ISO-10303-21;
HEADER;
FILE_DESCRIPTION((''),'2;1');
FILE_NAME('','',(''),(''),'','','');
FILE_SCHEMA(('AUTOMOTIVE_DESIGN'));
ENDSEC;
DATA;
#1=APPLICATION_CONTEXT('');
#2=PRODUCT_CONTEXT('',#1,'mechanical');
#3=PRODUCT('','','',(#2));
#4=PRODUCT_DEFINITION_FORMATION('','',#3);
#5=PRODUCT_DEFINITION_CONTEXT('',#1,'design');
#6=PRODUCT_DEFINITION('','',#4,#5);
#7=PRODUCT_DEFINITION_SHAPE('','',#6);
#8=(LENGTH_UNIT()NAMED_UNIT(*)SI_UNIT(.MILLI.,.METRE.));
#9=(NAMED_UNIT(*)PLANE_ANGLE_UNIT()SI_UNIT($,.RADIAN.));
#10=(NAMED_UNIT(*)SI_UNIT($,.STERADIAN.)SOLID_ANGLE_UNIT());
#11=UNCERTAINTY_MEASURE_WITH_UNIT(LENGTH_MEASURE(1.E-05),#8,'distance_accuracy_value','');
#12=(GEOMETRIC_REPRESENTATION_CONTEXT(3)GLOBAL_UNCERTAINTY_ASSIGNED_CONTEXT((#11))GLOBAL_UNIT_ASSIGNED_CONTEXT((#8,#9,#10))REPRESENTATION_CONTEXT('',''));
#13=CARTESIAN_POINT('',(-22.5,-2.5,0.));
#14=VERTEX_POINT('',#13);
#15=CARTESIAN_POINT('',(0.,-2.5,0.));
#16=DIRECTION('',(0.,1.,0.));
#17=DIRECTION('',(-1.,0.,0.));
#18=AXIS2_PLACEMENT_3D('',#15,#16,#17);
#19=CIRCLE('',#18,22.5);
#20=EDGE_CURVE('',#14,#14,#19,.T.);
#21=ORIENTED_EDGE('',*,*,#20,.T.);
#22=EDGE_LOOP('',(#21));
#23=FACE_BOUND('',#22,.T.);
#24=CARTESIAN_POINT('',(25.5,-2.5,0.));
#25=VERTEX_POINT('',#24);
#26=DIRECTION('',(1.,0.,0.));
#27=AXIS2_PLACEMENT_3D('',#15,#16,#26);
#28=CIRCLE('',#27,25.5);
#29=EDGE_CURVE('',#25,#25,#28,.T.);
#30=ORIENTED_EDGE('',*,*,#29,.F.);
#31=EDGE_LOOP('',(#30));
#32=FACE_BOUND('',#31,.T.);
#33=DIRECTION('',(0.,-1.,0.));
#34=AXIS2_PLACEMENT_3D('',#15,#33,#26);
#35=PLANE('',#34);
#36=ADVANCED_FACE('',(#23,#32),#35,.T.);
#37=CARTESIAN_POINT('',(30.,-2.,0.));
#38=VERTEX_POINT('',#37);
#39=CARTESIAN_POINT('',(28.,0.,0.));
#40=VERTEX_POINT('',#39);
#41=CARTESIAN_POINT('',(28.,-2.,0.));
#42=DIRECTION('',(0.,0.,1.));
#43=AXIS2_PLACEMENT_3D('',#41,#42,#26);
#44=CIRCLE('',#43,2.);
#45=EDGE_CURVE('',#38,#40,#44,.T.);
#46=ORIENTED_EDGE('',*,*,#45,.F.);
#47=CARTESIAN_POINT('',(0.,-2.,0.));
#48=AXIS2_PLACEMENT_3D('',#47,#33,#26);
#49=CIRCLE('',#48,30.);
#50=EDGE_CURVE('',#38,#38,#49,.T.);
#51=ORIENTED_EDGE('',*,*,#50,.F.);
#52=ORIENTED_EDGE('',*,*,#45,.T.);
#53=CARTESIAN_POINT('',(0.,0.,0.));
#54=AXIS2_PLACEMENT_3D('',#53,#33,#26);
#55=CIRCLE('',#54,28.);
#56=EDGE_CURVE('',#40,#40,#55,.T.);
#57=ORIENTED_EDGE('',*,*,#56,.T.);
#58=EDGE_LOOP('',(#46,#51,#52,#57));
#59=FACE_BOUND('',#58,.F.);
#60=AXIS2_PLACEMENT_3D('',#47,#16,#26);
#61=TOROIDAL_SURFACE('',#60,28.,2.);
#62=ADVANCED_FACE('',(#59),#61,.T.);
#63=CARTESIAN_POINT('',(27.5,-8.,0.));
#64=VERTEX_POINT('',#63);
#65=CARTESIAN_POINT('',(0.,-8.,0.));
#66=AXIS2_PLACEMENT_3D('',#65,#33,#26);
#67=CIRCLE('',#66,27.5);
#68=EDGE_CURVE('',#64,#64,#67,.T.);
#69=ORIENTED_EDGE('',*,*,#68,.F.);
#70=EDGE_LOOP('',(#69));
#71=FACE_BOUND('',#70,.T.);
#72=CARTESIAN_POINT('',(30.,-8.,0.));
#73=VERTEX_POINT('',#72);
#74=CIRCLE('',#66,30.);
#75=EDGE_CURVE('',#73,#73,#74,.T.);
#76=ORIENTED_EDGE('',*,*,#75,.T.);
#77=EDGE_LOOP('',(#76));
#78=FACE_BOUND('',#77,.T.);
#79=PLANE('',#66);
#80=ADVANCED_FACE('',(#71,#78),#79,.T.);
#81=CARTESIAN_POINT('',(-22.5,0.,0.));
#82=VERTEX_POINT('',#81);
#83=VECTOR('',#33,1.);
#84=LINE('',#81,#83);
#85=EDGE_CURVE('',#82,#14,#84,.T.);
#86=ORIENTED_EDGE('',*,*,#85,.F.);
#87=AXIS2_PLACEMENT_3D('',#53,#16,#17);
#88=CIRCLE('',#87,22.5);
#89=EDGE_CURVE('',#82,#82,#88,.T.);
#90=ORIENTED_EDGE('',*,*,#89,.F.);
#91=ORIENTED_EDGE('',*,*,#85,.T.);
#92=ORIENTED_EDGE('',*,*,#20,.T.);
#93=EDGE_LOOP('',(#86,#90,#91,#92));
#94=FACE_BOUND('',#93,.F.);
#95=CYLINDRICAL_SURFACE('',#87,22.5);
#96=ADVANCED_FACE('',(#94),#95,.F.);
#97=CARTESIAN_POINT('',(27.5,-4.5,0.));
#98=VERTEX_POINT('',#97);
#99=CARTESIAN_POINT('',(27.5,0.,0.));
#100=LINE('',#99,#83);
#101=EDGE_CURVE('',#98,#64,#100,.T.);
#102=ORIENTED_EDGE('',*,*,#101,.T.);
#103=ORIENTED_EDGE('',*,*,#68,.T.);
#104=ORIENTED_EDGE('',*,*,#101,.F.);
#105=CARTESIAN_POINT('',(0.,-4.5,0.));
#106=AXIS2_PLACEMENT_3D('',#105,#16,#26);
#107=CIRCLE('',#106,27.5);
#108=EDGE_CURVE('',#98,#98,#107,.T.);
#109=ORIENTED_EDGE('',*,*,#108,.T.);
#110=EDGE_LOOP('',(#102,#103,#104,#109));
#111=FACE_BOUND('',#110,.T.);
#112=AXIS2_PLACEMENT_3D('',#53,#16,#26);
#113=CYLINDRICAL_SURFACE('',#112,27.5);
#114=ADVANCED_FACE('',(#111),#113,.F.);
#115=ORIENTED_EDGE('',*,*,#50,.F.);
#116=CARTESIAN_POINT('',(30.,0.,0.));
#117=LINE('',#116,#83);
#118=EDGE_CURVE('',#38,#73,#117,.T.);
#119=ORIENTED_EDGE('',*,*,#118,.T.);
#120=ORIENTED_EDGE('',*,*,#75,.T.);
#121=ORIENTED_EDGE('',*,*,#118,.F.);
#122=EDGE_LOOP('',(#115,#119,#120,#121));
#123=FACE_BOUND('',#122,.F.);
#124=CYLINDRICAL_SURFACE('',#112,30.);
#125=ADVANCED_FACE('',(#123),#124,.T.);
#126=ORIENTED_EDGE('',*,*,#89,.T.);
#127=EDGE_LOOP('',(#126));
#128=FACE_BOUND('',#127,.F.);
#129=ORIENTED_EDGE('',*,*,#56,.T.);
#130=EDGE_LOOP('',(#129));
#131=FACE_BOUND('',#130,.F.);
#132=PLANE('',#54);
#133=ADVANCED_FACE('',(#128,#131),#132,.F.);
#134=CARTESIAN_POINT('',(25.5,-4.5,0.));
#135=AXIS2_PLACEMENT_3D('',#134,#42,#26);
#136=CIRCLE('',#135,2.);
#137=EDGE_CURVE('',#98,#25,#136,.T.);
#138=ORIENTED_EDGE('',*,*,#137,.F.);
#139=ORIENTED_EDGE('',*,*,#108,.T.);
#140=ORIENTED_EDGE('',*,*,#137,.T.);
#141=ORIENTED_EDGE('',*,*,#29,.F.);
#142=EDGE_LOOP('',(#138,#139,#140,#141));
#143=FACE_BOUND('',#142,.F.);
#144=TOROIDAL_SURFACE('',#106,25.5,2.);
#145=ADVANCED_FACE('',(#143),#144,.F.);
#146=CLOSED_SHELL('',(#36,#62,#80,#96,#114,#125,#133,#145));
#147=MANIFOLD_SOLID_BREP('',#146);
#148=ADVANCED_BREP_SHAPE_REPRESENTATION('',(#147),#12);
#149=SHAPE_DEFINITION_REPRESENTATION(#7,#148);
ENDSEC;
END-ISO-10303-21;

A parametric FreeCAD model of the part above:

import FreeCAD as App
import Part
import Sketcher

V = App.Vector
Q = App.Units.Quantity


def edges_at(feature, points):
    """Names of the edges that pass closest to the given points."""
    edges = feature.Shape.Edges
    near = lambda p: min(range(len(edges)), key=lambda i: edges[i].distToShape(Part.Vertex(*p))[0])
    return sorted({f"Edge{near(p) + 1}" for p in points})


def faces_at(feature, points):
    """Names of the faces that lie closest to the given points."""
    faces = feature.Shape.Faces
    near = lambda p: min(range(len(faces)), key=lambda i: faces[i].distToShape(Part.Vertex(*p))[0])
    return sorted({f"Face{near(p) + 1}" for p in points})

doc = App.newDocument("Part")
params = doc.addObject("Spreadsheet::Sheet", "Params")
for row, (alias, value) in enumerate([
    ("sketch1_diameter", "60 mm"),
    ("pad1_length", "8 mm"),
    ("thickness_wall", "2.5 mm"),
    ("sketch2_diameter", "45 mm"),
    ("pocket1_length", "25 mm"),
    ("fillet_radius", "2 mm"),
    ("fillet2_radius", "2 mm"),
], start=1):
    params.set(f"A{row}", alias)
    params.set(f"B{row}", "=" + value)
    params.setAlias(f"B{row}", alias)

body = doc.addObject("PartDesign::Body", "Body")

# Sketch on XZ plane
sketch1 = body.newObject("Sketcher::SketchObject", "Sketch")
sketch1.AttachmentSupport = (doc.getObject("XZ_Plane"), [""])
sketch1.MapMode = "FlatFace"
sketch1.addGeometry(Part.Circle(V(0, 0, 0), V(0, 0, 1), 30), False)
sketch1.addConstraint([
    Sketcher.Constraint("Coincident", 0, 3, -1, 1),
    Sketcher.Constraint("Diameter", 0, Q("60 mm")),
])
sketch1.setExpression("Constraints[1]", "Params.sketch1_diameter")
pad1 = body.newObject("PartDesign::Pad", "Pad")
pad1.Profile = sketch1
pad1.setExpression("Length", "Params.pad1_length")
doc.recompute()

thickness = body.newObject("PartDesign::Thickness", "Thickness")
thickness.Base = (pad1, faces_at(pad1, [(0, -8, 0)]))
thickness.setExpression("Value", "Params.thickness_wall")
thickness.Reversed = True
thickness.Join = "Arc"

# Sketch on XZ plane
sketch2 = body.newObject("Sketcher::SketchObject", "Sketch001")
sketch2.AttachmentSupport = (doc.getObject("XZ_Plane"), [""])
sketch2.MapMode = "FlatFace"
sketch2.addGeometry(Part.Circle(V(0, 0, 0), V(0, 0, 1), 22), False)
sketch2.addConstraint([
    Sketcher.Constraint("Coincident", 0, 3, -1, 1),
    Sketcher.Constraint("Diameter", 0, Q("45 mm")),
])
sketch2.setExpression("Constraints[1]", "Params.sketch2_diameter")
pocket1 = body.newObject("PartDesign::Pocket", "Pocket")
pocket1.Profile = sketch2
pocket1.setExpression("Length", "Params.pocket1_length")
pocket1.Reversed = True
doc.recompute()

fillet = body.newObject("PartDesign::Fillet", "Fillet")
fillet.Base = (pocket1, edges_at(pocket1, [(-30, 0, 0)]))
fillet.setExpression("Radius", "Params.fillet_radius")
doc.recompute()

fillet2 = body.newObject("PartDesign::Fillet", "Fillet001")
fillet2.Base = (fillet, edges_at(fillet, [(-27.5, -2.5, 0)]))
fillet2.setExpression("Radius", "Params.fillet2_radius")

doc.recompute()
